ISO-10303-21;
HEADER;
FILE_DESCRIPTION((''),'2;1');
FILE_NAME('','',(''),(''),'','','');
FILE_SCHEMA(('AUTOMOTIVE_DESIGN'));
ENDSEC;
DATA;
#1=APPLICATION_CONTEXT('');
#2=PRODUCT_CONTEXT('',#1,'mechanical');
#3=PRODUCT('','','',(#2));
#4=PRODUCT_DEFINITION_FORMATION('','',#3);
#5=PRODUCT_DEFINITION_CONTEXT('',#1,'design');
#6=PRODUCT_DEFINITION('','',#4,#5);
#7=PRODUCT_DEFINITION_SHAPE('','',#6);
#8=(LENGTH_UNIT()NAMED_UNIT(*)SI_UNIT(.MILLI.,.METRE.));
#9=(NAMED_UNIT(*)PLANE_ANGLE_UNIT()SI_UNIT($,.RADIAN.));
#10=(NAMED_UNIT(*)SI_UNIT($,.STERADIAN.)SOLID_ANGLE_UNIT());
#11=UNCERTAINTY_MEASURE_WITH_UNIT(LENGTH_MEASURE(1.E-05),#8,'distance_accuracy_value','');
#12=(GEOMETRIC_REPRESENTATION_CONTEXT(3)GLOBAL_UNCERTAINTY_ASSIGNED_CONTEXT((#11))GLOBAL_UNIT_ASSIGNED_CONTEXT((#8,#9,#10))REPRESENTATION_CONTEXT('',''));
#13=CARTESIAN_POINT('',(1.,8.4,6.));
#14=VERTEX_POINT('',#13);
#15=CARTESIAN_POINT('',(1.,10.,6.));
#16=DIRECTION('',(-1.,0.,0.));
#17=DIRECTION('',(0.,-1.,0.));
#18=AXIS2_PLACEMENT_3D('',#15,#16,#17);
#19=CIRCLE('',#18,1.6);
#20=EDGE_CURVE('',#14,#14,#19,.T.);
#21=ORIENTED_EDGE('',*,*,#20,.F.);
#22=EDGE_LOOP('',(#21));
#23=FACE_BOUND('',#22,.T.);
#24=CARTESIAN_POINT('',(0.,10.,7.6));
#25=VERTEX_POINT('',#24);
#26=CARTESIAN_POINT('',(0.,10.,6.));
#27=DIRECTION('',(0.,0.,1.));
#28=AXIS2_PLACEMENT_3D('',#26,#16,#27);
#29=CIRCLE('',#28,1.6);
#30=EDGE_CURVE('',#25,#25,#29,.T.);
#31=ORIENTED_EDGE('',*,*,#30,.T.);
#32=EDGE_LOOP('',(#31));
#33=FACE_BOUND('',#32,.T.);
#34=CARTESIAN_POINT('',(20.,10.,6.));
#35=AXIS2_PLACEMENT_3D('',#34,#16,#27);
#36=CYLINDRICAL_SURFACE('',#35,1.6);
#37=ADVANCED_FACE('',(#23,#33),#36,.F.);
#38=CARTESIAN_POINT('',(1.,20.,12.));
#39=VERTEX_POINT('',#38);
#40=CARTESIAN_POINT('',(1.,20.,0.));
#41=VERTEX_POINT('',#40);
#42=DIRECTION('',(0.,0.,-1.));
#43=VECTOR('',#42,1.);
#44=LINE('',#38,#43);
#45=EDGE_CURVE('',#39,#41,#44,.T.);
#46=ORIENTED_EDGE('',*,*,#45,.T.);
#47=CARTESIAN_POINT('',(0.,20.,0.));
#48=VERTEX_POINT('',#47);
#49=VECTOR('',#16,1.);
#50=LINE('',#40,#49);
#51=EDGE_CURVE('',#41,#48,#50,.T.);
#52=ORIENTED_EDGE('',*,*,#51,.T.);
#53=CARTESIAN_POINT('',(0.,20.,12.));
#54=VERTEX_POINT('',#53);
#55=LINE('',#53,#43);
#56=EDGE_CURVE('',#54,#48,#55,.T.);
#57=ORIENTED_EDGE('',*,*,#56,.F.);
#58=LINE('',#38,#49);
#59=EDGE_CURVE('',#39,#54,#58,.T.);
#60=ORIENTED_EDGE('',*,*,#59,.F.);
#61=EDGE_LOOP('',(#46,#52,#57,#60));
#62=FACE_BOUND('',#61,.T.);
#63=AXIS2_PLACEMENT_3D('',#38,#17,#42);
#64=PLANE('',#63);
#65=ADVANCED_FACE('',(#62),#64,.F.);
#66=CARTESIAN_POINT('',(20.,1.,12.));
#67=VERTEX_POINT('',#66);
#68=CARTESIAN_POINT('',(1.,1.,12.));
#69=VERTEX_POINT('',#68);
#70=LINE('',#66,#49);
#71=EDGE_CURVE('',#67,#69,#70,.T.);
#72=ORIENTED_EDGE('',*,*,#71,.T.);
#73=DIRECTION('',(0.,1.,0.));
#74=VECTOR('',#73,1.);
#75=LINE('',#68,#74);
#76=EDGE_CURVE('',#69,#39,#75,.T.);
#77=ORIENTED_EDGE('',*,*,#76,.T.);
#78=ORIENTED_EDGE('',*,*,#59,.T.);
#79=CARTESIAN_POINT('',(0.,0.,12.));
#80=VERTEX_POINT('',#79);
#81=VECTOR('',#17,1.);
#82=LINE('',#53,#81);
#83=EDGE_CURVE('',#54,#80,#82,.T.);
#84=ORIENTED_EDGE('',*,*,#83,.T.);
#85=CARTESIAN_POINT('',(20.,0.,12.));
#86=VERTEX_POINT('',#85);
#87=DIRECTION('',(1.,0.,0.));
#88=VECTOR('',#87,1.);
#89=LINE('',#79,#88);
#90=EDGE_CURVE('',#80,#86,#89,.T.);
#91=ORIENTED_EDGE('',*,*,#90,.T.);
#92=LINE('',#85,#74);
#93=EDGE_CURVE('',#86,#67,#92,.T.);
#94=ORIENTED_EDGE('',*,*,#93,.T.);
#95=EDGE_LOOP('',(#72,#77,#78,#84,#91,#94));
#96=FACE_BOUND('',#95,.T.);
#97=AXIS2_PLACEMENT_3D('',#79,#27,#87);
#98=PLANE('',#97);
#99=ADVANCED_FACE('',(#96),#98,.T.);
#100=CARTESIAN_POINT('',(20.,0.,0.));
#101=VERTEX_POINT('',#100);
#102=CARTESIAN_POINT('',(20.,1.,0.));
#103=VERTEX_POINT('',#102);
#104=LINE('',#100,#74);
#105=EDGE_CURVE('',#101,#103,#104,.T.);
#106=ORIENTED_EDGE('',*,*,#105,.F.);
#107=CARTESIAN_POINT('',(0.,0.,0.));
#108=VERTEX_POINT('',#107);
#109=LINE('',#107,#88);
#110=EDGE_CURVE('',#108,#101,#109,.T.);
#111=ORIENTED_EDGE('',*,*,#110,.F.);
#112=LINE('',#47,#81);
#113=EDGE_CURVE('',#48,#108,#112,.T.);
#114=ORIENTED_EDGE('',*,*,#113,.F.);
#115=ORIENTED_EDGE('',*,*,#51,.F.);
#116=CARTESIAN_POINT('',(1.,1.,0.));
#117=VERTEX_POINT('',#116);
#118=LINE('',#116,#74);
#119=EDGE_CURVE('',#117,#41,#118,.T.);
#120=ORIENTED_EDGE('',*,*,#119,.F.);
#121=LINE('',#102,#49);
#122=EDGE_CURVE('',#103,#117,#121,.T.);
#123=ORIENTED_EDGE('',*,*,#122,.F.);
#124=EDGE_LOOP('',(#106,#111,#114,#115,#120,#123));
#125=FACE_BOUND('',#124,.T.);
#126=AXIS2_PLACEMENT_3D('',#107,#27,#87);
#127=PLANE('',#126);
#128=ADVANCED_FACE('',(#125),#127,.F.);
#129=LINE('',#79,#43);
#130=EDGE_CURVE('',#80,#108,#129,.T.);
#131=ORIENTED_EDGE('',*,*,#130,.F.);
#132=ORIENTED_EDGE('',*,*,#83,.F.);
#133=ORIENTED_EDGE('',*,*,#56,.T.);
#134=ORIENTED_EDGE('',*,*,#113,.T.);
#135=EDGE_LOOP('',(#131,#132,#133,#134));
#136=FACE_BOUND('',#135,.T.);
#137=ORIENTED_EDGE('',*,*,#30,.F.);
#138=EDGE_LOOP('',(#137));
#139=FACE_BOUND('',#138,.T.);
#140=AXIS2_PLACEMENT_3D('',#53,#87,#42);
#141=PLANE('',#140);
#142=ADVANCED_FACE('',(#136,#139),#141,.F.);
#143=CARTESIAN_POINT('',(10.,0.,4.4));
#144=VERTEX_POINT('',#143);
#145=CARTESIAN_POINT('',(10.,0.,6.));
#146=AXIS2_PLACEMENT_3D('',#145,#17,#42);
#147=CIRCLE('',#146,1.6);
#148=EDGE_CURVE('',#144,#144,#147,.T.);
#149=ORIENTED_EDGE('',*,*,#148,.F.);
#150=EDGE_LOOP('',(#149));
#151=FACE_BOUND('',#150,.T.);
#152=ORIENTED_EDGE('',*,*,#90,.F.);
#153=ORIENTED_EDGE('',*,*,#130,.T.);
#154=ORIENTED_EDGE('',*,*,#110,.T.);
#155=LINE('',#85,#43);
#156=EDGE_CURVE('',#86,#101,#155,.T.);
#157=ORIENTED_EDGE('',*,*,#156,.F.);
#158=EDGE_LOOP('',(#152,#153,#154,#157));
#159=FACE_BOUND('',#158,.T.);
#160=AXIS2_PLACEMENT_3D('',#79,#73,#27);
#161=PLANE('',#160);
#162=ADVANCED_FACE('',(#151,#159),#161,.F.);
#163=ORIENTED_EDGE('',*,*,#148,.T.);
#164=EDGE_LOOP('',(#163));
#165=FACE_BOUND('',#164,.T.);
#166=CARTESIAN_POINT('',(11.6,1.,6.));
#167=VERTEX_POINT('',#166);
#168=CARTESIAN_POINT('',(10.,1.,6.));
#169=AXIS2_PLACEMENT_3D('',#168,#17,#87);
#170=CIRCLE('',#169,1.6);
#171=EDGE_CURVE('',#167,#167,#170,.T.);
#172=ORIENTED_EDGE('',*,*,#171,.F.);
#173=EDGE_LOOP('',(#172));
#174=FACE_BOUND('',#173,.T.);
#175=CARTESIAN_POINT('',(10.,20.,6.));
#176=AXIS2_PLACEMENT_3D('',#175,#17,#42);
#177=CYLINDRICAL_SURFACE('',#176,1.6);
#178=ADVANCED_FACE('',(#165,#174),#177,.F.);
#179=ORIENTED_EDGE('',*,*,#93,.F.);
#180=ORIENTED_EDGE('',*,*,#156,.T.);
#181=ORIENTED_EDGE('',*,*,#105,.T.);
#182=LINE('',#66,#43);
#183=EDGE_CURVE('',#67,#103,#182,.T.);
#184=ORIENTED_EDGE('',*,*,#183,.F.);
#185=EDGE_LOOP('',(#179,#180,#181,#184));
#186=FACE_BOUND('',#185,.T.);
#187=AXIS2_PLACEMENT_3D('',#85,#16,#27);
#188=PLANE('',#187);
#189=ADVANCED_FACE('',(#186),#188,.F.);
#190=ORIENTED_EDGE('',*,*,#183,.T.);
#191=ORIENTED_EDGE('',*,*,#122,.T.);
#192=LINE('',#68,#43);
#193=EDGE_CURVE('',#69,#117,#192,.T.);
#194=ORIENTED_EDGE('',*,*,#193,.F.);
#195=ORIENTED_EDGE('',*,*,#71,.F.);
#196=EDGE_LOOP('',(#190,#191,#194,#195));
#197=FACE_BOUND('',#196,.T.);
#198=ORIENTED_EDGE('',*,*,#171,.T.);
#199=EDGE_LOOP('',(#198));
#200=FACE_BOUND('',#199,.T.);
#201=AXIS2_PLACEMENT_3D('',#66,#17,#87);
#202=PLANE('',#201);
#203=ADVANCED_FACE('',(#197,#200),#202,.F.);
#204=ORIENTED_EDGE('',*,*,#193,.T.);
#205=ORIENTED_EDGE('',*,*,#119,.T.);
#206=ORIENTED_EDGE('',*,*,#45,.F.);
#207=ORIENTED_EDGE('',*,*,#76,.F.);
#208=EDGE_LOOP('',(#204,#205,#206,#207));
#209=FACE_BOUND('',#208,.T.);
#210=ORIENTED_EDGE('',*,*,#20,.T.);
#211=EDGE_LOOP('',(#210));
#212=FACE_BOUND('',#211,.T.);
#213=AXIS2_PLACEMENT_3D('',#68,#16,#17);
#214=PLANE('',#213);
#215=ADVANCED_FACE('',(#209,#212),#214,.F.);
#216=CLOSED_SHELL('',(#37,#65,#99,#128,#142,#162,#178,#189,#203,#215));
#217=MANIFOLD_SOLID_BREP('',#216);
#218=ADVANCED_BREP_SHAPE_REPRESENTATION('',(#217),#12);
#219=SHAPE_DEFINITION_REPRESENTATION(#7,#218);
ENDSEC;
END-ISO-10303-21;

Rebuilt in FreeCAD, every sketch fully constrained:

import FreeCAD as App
import Part
import Sketcher


def add_polygon(sketch, points):
    """Adds a closed chain of lines whose ends are joined by coincident constraints."""
    first, n = sketch.GeometryCount, len(points)
    for a, b in zip(points, points[1:] + points[:1]):
        sketch.addGeometry(Part.LineSegment(App.Vector(*a, 0), App.Vector(*b, 0)), False)
    for i in range(n):
        sketch.addConstraint(Sketcher.Constraint("Coincident", first + i, 2, first + (i + 1) % n, 1))

doc = App.newDocument("Part")
body = doc.addObject("PartDesign::Body", "Body")

# Sketch on XY plane
sketch1 = body.newObject("Sketcher::SketchObject", "Sketch")
sketch1.AttachmentSupport = (doc.getObject("XY_Plane"), [""])
sketch1.MapMode = "FlatFace"
add_polygon(sketch1, [(0, 0), (20, 0), (20, 1), (1, 1), (1, 20), (0, 20)])  # lines 0-5
sketch1.addConstraint(Sketcher.Constraint("Horizontal", 0))
sketch1.addConstraint(Sketcher.Constraint("Vertical", 1))
sketch1.addConstraint(Sketcher.Constraint("Horizontal", 2))
sketch1.addConstraint(Sketcher.Constraint("Vertical", 3))
sketch1.addConstraint(Sketcher.Constraint("Horizontal", 4))
sketch1.addConstraint(Sketcher.Constraint("Vertical", 5))
sketch1.addConstraint(Sketcher.Constraint("Coincident", 5, 2, -1, 1))
sketch1.addConstraint(Sketcher.Constraint("Equal", 4, 1))
sketch1.addConstraint(Sketcher.Constraint("Equal", 2, 3))
sketch1.addConstraint(Sketcher.Constraint("DistanceX", 0, 1, 0, 2, 20.0))
sketch1.addConstraint(Sketcher.Constraint("DistanceX", 2, 2, 2, 1, 19.0))
pad1 = body.newObject("PartDesign::Pad", "Pad")
pad1.Profile = sketch1
pad1.Length = 12

# Sketch on XZ plane
sketch2 = body.newObject("Sketcher::SketchObject", "Sketch001")
sketch2.AttachmentSupport = (doc.getObject("XZ_Plane"), [""])
sketch2.MapMode = "FlatFace"
sketch2.addGeometry(Part.Circle(App.Vector(10, 6, 0), App.Vector(0, 0, 1), 1.6), False)
sketch2.addConstraint(Sketcher.Constraint("Diameter", 0, 3.2))
sketch2.addConstraint(Sketcher.Constraint("DistanceX", -1, 1, 0, 3, 10.0))
sketch2.addConstraint(Sketcher.Constraint("DistanceY", -1, 1, 0, 3, 6.0))
pocket1 = body.newObject("PartDesign::Pocket", "Pocket")
pocket1.Profile = sketch2
pocket1.Type = "ThroughAll"

# Sketch on YZ plane
sketch3 = body.newObject("Sketcher::SketchObject", "Sketch002")
sketch3.AttachmentSupport = (doc.getObject("YZ_Plane"), [""])
sketch3.MapMode = "FlatFace"
sketch3.addGeometry(Part.Circle(App.Vector(10, 6, 0), App.Vector(0, 0, 1), 1.6), False)
sketch3.addConstraint(Sketcher.Constraint("Diameter", 0, 3.2))
sketch3.addConstraint(Sketcher.Constraint("DistanceX", -1, 1, 0, 3, 10.0))
sketch3.addConstraint(Sketcher.Constraint("DistanceY", -1, 1, 0, 3, 6.0))
pocket2 = body.newObject("PartDesign::Pocket", "Pocket001")
pocket2.Profile = sketch3
pocket2.Type = "ThroughAll"
pocket2.Reversed = True

doc.recompute()
